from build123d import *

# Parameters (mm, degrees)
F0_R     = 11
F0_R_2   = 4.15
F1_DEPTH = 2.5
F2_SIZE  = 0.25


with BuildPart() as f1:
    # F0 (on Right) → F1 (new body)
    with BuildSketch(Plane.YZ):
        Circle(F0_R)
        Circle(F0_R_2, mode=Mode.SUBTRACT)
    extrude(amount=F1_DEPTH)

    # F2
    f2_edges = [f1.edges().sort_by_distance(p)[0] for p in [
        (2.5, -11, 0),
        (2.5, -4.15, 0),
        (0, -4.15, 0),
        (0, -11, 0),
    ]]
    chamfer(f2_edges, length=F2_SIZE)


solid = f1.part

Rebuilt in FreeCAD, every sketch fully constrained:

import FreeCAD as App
import Part
import Sketcher


def edges_at(feature, points):
    """Names of the edges that pass closest to the given points."""
    edges = feature.Shape.Edges
    near = lambda p: min(range(len(edges)), key=lambda i: edges[i].distToShape(Part.Vertex(*p))[0])
    return sorted({f"Edge{near(p) + 1}" for p in points})

doc = App.newDocument("Part")
body = doc.addObject("PartDesign::Body", "Body")

# Sketch on YZ plane
sketch1 = body.newObject("Sketcher::SketchObject", "Sketch")
sketch1.AttachmentSupport = (doc.getObject("YZ_Plane"), [""])
sketch1.MapMode = "FlatFace"
sketch1.addGeometry([
    Part.Circle(App.Vector(0, 0, 0), App.Vector(0, 0, 1), 11),
    Part.Circle(App.Vector(0, 0, 0), App.Vector(0, 0, 1), 4.15),
], False)
sketch1.addConstraint([
    Sketcher.Constraint("Coincident", 0, 3, -1, 1),
    Sketcher.Constraint("Coincident", 1, 3, -1, 1),
    Sketcher.Constraint("Diameter", 0, 22.0),
    Sketcher.Constraint("Diameter", 1, 8.3),
])
pad1 = body.newObject("PartDesign::Pad", "Pad")
pad1.Profile = sketch1
pad1.Length = 2.5
doc.recompute()

chamfer = body.newObject("PartDesign::Chamfer", "Chamfer")
chamfer.Base = (pad1, edges_at(pad1, [
    (2.5, -11, 0),
    (2.5, -4.15, 0),
    (0, -4.15, 0),
    (0, -11, 0),
]))
chamfer.Size = 0.25

doc.recompute()
